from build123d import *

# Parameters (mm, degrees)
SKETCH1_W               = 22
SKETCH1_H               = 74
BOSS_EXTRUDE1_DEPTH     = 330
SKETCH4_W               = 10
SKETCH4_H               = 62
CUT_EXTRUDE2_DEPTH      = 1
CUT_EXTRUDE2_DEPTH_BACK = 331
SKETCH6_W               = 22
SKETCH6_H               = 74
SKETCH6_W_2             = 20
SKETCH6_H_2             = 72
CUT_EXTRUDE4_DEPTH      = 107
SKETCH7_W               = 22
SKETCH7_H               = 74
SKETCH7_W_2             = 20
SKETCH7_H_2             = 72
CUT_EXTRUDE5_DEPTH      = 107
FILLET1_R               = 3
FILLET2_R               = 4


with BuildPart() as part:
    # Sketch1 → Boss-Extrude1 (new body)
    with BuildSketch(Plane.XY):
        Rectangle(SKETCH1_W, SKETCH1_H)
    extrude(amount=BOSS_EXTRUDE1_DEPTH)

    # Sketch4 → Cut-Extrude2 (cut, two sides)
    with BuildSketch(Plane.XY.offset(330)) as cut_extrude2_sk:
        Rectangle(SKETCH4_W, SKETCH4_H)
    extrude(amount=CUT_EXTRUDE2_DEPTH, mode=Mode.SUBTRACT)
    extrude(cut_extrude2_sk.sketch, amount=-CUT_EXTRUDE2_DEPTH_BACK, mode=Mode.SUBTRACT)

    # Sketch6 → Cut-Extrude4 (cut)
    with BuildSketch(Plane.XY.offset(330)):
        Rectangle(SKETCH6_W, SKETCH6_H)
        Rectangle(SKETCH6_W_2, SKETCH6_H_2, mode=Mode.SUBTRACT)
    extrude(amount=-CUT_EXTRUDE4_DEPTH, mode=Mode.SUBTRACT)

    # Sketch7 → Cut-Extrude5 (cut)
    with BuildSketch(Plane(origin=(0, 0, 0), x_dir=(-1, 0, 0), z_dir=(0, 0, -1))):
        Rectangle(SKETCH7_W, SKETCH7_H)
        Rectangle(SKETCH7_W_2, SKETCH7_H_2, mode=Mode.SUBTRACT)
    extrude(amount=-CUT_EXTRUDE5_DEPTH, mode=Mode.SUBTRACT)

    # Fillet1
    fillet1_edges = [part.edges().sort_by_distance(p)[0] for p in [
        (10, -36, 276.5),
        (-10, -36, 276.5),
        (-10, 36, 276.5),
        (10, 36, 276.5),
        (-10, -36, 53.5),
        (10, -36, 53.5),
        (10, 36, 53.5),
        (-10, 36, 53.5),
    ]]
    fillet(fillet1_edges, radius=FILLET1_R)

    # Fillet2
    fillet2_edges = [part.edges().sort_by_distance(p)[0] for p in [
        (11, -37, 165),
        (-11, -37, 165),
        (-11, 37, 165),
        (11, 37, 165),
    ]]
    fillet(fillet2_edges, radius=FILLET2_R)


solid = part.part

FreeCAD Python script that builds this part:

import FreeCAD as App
import Part
import Sketcher
Q = App.Units.Quantity


def edges_at(feature, points):
    """Names of the edges that pass closest to the given points."""
    edges = feature.Shape.Edges
    near = lambda p: min(range(len(edges)), key=lambda i: edges[i].distToShape(Part.Vertex(*p))[0])
    return sorted({f"Edge{near(p) + 1}" for p in points})

doc = App.newDocument("Part")
body = doc.addObject("PartDesign::Body", "Body")

sketch1 = body.newObject("Sketcher::SketchObject", "Sketch")
sketch1.AttachmentSupport = (doc.getObject("XY_Plane"), [""])
sketch1.MapMode = "FlatFace"
sketch1.addGeometry(Part.LineSegment(App.Vector(-11, 37, 0), App.Vector(-11, -37, 0)), False)
sketch1.addGeometry(Part.LineSegment(App.Vector(-11, -37, 0), App.Vector(11, -37, 0)), False)
sketch1.addGeometry(Part.LineSegment(App.Vector(11, -37, 0), App.Vector(11, 37, 0)), False)
sketch1.addGeometry(Part.LineSegment(App.Vector(11, 37, 0), App.Vector(-11, 37, 0)), False)
sketch1.addConstraint(Sketcher.Constraint("Coincident", 0, 2, 1, 1))
sketch1.addConstraint(Sketcher.Constraint("Coincident", 1, 2, 2, 1))
sketch1.addConstraint(Sketcher.Constraint("Coincident", 2, 2, 3, 1))
sketch1.addConstraint(Sketcher.Constraint("Coincident", 3, 2, 0, 1))
sketch1.addConstraint(Sketcher.Constraint("Vertical", 0))
sketch1.addConstraint(Sketcher.Constraint("Horizontal", 1))
sketch1.addConstraint(Sketcher.Constraint("Vertical", 2))
sketch1.addConstraint(Sketcher.Constraint("Horizontal", 3))
sketch1.addConstraint(Sketcher.Constraint("Symmetric", 0, 2, 2, 2, -1, 1))
sketch1.addConstraint(Sketcher.Constraint("DistanceX", 1, 1, 1, 2, Q("22 mm")))
sketch1.addConstraint(Sketcher.Constraint("DistanceY", 0, 2, 0, 1, Q("74 mm")))
pad1 = body.newObject("PartDesign::Pad", "Pad")
pad1.Profile = sketch1
pad1.Length = 330

sketch2 = body.newObject("Sketcher::SketchObject", "Sketch001")
sketch2.AttachmentSupport = (doc.getObject("XY_Plane"), [""])
sketch2.MapMode = "FlatFace"
sketch2.AttachmentOffset = App.Placement(App.Vector(0, 0, 330), App.Rotation())
sketch2.addGeometry(Part.LineSegment(App.Vector(-5, 31, 0), App.Vector(-5, -31, 0)), False)
sketch2.addGeometry(Part.LineSegment(App.Vector(-5, -31, 0), App.Vector(5, -31, 0)), False)
sketch2.addGeometry(Part.LineSegment(App.Vector(5, -31, 0), App.Vector(5, 31, 0)), False)
sketch2.addGeometry(Part.LineSegment(App.Vector(5, 31, 0), App.Vector(-5, 31, 0)), False)
sketch2.addConstraint(Sketcher.Constraint("Coincident", 0, 2, 1, 1))
sketch2.addConstraint(Sketcher.Constraint("Coincident", 1, 2, 2, 1))
sketch2.addConstraint(Sketcher.Constraint("Coincident", 2, 2, 3, 1))
sketch2.addConstraint(Sketcher.Constraint("Coincident", 3, 2, 0, 1))
sketch2.addConstraint(Sketcher.Constraint("Vertical", 0))
sketch2.addConstraint(Sketcher.Constraint("Horizontal", 1))
sketch2.addConstraint(Sketcher.Constraint("Vertical", 2))
sketch2.addConstraint(Sketcher.Constraint("Horizontal", 3))
sketch2.addConstraint(Sketcher.Constraint("Symmetric", 0, 2, 2, 2, -1, 1))
sketch2.addConstraint(Sketcher.Constraint("DistanceX", 1, 1, 1, 2, Q("10 mm")))
sketch2.addConstraint(Sketcher.Constraint("DistanceY", 0, 2, 0, 1, Q("62 mm")))
pocket1 = body.newObject("PartDesign::Pocket", "Pocket")
pocket1.Profile = sketch2
pocket1.Type = "ThroughAll"
pocket1.Midplane = True

sketch3 = body.newObject("Sketcher::SketchObject", "Sketch002")
sketch3.AttachmentSupport = (doc.getObject("XY_Plane"), [""])
sketch3.MapMode = "FlatFace"
sketch3.AttachmentOffset = App.Placement(App.Vector(0, 0, 330), App.Rotation())
sketch3.addGeometry(Part.LineSegment(App.Vector(-11, 37, 0), App.Vector(-11, -37, 0)), False)
sketch3.addGeometry(Part.LineSegment(App.Vector(-11, -37, 0), App.Vector(11, -37, 0)), False)
sketch3.addGeometry(Part.LineSegment(App.Vector(11, -37, 0), App.Vector(11, 37, 0)), False)
sketch3.addGeometry(Part.LineSegment(App.Vector(11, 37, 0), App.Vector(-11, 37, 0)), False)
sketch3.addGeometry(Part.LineSegment(App.Vector(10, -36, 0), App.Vector(-10, -36, 0)), False)
sketch3.addGeometry(Part.LineSegment(App.Vector(-10, -36, 0), App.Vector(-10, 36, 0)), False)
sketch3.addGeometry(Part.LineSegment(App.Vector(-10, 36, 0), App.Vector(10, 36, 0)), False)
sketch3.addGeometry(Part.LineSegment(App.Vector(10, 36, 0), App.Vector(10, -36, 0)), False)
sketch3.addConstraint(Sketcher.Constraint("Coincident", 0, 2, 1, 1))
sketch3.addConstraint(Sketcher.Constraint("Coincident", 1, 2, 2, 1))
sketch3.addConstraint(Sketcher.Constraint("Coincident", 2, 2, 3, 1))
sketch3.addConstraint(Sketcher.Constraint("Coincident", 3, 2, 0, 1))
sketch3.addConstraint(Sketcher.Constraint("Coincident", 4, 2, 5, 1))
sketch3.addConstraint(Sketcher.Constraint("Coincident", 5, 2, 6, 1))
sketch3.addConstraint(Sketcher.Constraint("Coincident", 6, 2, 7, 1))
sketch3.addConstraint(Sketcher.Constraint("Coincident", 7, 2, 4, 1))
sketch3.addConstraint(Sketcher.Constraint("Vertical", 0))
sketch3.addConstraint(Sketcher.Constraint("Horizontal", 1))
sketch3.addConstraint(Sketcher.Constraint("Vertical", 2))
sketch3.addConstraint(Sketcher.Constraint("Horizontal", 3))
sketch3.addConstraint(Sketcher.Constraint("Horizontal", 4))
sketch3.addConstraint(Sketcher.Constraint("Vertical", 5))
sketch3.addConstraint(Sketcher.Constraint("Horizontal", 6))
sketch3.addConstraint(Sketcher.Constraint("Vertical", 7))
sketch3.addConstraint(Sketcher.Constraint("Symmetric", 0, 2, 2, 2, -1, 1))
sketch3.addConstraint(Sketcher.Constraint("Symmetric", 4, 2, 6, 2, -1, 1))
sketch3.addConstraint(Sketcher.Constraint("DistanceX", 1, 1, 1, 2, Q("22 mm")))
sketch3.addConstraint(Sketcher.Constraint("DistanceX", 4, 2, 4, 1, Q("20 mm")))
sketch3.addConstraint(Sketcher.Constraint("DistanceY", 0, 2, 0, 1, Q("74 mm")))
sketch3.addConstraint(Sketcher.Constraint("DistanceY", 5, 1, 5, 2, Q("72 mm")))
pocket2 = body.newObject("PartDesign::Pocket", "Pocket001")
pocket2.Profile = sketch3
pocket2.Length = 107

sketch4 = body.newObject("Sketcher::SketchObject", "Sketch003")
sketch4.AttachmentSupport = (doc.getObject("XY_Plane"), [""])
sketch4.MapMode = "FlatFace"
sketch4.addGeometry(Part.LineSegment(App.Vector(11, 37, 0), App.Vector(11, -37, 0)), False)
sketch4.addGeometry(Part.LineSegment(App.Vector(11, -37, 0), App.Vector(-11, -37, 0)), False)
sketch4.addGeometry(Part.LineSegment(App.Vector(-11, -37, 0), App.Vector(-11, 37, 0)), False)
sketch4.addGeometry(Part.LineSegment(App.Vector(-11, 37, 0), App.Vector(11, 37, 0)), False)
sketch4.addGeometry(Part.LineSegment(App.Vector(-10, -36, 0), App.Vector(10, -36, 0)), False)
sketch4.addGeometry(Part.LineSegment(App.Vector(10, -36, 0), App.Vector(10, 36, 0)), False)
sketch4.addGeometry(Part.LineSegment(App.Vector(10, 36, 0), App.Vector(-10, 36, 0)), False)
sketch4.addGeometry(Part.LineSegment(App.Vector(-10, 36, 0), App.Vector(-10, -36, 0)), False)
sketch4.addConstraint(Sketcher.Constraint("Coincident", 0, 2, 1, 1))
sketch4.addConstraint(Sketcher.Constraint("Coincident", 1, 2, 2, 1))
sketch4.addConstraint(Sketcher.Constraint("Coincident", 2, 2, 3, 1))
sketch4.addConstraint(Sketcher.Constraint("Coincident", 3, 2, 0, 1))
sketch4.addConstraint(Sketcher.Constraint("Coincident", 4, 2, 5, 1))
sketch4.addConstraint(Sketcher.Constraint("Coincident", 5, 2, 6, 1))
sketch4.addConstraint(Sketcher.Constraint("Coincident", 6, 2, 7, 1))
sketch4.addConstraint(Sketcher.Constraint("Coincident", 7, 2, 4, 1))
sketch4.addConstraint(Sketcher.Constraint("Vertical", 0))
sketch4.addConstraint(Sketcher.Constraint("Horizontal", 1))
sketch4.addConstraint(Sketcher.Constraint("Vertical", 2))
sketch4.addConstraint(Sketcher.Constraint("Horizontal", 3))
sketch4.addConstraint(Sketcher.Constraint("Horizontal", 4))
sketch4.addConstraint(Sketcher.Constraint("Vertical", 5))
sketch4.addConstraint(Sketcher.Constraint("Horizontal", 6))
sketch4.addConstraint(Sketcher.Constraint("Vertical", 7))
sketch4.addConstraint(Sketcher.Constraint("Symmetric", 0, 2, 2, 2, -1, 1))
sketch4.addConstraint(Sketcher.Constraint("Symmetric", 4, 2, 6, 2, -1, 1))
sketch4.addConstraint(Sketcher.Constraint("DistanceX", 1, 2, 1, 1, Q("22 mm")))
sketch4.addConstraint(Sketcher.Constraint("DistanceX", 4, 1, 4, 2, Q("20 mm")))
sketch4.addConstraint(Sketcher.Constraint("DistanceY", 0, 2, 0, 1, Q("74 mm")))
sketch4.addConstraint(Sketcher.Constraint("DistanceY", 5, 1, 5, 2, Q("72 mm")))
pocket3 = body.newObject("PartDesign::Pocket", "Pocket002")
pocket3.Profile = sketch4
pocket3.Length = 107
pocket3.Reversed = True
doc.recompute()

fillet = body.newObject("PartDesign::Fillet", "Fillet")
fillet.Base = (pocket3, edges_at(pocket3, [
    (10, -36, 276.5),
    (-10, -36, 276.5),
    (-10, 36, 276.5),
    (10, 36, 276.5),
    (-10, -36, 53.5),
    (10, -36, 53.5),
    (10, 36, 53.5),
    (-10, 36, 53.5),
]))
fillet.Radius = 3
doc.recompute()

fillet2 = body.newObject("PartDesign::Fillet", "Fillet001")
fillet2.Base = (fillet, edges_at(fillet, [
    (11, -37, 165),
    (-11, -37, 165),
    (-11, 37, 165),
    (11, 37, 165),
]))
fillet2.Radius = 4

doc.recompute()
